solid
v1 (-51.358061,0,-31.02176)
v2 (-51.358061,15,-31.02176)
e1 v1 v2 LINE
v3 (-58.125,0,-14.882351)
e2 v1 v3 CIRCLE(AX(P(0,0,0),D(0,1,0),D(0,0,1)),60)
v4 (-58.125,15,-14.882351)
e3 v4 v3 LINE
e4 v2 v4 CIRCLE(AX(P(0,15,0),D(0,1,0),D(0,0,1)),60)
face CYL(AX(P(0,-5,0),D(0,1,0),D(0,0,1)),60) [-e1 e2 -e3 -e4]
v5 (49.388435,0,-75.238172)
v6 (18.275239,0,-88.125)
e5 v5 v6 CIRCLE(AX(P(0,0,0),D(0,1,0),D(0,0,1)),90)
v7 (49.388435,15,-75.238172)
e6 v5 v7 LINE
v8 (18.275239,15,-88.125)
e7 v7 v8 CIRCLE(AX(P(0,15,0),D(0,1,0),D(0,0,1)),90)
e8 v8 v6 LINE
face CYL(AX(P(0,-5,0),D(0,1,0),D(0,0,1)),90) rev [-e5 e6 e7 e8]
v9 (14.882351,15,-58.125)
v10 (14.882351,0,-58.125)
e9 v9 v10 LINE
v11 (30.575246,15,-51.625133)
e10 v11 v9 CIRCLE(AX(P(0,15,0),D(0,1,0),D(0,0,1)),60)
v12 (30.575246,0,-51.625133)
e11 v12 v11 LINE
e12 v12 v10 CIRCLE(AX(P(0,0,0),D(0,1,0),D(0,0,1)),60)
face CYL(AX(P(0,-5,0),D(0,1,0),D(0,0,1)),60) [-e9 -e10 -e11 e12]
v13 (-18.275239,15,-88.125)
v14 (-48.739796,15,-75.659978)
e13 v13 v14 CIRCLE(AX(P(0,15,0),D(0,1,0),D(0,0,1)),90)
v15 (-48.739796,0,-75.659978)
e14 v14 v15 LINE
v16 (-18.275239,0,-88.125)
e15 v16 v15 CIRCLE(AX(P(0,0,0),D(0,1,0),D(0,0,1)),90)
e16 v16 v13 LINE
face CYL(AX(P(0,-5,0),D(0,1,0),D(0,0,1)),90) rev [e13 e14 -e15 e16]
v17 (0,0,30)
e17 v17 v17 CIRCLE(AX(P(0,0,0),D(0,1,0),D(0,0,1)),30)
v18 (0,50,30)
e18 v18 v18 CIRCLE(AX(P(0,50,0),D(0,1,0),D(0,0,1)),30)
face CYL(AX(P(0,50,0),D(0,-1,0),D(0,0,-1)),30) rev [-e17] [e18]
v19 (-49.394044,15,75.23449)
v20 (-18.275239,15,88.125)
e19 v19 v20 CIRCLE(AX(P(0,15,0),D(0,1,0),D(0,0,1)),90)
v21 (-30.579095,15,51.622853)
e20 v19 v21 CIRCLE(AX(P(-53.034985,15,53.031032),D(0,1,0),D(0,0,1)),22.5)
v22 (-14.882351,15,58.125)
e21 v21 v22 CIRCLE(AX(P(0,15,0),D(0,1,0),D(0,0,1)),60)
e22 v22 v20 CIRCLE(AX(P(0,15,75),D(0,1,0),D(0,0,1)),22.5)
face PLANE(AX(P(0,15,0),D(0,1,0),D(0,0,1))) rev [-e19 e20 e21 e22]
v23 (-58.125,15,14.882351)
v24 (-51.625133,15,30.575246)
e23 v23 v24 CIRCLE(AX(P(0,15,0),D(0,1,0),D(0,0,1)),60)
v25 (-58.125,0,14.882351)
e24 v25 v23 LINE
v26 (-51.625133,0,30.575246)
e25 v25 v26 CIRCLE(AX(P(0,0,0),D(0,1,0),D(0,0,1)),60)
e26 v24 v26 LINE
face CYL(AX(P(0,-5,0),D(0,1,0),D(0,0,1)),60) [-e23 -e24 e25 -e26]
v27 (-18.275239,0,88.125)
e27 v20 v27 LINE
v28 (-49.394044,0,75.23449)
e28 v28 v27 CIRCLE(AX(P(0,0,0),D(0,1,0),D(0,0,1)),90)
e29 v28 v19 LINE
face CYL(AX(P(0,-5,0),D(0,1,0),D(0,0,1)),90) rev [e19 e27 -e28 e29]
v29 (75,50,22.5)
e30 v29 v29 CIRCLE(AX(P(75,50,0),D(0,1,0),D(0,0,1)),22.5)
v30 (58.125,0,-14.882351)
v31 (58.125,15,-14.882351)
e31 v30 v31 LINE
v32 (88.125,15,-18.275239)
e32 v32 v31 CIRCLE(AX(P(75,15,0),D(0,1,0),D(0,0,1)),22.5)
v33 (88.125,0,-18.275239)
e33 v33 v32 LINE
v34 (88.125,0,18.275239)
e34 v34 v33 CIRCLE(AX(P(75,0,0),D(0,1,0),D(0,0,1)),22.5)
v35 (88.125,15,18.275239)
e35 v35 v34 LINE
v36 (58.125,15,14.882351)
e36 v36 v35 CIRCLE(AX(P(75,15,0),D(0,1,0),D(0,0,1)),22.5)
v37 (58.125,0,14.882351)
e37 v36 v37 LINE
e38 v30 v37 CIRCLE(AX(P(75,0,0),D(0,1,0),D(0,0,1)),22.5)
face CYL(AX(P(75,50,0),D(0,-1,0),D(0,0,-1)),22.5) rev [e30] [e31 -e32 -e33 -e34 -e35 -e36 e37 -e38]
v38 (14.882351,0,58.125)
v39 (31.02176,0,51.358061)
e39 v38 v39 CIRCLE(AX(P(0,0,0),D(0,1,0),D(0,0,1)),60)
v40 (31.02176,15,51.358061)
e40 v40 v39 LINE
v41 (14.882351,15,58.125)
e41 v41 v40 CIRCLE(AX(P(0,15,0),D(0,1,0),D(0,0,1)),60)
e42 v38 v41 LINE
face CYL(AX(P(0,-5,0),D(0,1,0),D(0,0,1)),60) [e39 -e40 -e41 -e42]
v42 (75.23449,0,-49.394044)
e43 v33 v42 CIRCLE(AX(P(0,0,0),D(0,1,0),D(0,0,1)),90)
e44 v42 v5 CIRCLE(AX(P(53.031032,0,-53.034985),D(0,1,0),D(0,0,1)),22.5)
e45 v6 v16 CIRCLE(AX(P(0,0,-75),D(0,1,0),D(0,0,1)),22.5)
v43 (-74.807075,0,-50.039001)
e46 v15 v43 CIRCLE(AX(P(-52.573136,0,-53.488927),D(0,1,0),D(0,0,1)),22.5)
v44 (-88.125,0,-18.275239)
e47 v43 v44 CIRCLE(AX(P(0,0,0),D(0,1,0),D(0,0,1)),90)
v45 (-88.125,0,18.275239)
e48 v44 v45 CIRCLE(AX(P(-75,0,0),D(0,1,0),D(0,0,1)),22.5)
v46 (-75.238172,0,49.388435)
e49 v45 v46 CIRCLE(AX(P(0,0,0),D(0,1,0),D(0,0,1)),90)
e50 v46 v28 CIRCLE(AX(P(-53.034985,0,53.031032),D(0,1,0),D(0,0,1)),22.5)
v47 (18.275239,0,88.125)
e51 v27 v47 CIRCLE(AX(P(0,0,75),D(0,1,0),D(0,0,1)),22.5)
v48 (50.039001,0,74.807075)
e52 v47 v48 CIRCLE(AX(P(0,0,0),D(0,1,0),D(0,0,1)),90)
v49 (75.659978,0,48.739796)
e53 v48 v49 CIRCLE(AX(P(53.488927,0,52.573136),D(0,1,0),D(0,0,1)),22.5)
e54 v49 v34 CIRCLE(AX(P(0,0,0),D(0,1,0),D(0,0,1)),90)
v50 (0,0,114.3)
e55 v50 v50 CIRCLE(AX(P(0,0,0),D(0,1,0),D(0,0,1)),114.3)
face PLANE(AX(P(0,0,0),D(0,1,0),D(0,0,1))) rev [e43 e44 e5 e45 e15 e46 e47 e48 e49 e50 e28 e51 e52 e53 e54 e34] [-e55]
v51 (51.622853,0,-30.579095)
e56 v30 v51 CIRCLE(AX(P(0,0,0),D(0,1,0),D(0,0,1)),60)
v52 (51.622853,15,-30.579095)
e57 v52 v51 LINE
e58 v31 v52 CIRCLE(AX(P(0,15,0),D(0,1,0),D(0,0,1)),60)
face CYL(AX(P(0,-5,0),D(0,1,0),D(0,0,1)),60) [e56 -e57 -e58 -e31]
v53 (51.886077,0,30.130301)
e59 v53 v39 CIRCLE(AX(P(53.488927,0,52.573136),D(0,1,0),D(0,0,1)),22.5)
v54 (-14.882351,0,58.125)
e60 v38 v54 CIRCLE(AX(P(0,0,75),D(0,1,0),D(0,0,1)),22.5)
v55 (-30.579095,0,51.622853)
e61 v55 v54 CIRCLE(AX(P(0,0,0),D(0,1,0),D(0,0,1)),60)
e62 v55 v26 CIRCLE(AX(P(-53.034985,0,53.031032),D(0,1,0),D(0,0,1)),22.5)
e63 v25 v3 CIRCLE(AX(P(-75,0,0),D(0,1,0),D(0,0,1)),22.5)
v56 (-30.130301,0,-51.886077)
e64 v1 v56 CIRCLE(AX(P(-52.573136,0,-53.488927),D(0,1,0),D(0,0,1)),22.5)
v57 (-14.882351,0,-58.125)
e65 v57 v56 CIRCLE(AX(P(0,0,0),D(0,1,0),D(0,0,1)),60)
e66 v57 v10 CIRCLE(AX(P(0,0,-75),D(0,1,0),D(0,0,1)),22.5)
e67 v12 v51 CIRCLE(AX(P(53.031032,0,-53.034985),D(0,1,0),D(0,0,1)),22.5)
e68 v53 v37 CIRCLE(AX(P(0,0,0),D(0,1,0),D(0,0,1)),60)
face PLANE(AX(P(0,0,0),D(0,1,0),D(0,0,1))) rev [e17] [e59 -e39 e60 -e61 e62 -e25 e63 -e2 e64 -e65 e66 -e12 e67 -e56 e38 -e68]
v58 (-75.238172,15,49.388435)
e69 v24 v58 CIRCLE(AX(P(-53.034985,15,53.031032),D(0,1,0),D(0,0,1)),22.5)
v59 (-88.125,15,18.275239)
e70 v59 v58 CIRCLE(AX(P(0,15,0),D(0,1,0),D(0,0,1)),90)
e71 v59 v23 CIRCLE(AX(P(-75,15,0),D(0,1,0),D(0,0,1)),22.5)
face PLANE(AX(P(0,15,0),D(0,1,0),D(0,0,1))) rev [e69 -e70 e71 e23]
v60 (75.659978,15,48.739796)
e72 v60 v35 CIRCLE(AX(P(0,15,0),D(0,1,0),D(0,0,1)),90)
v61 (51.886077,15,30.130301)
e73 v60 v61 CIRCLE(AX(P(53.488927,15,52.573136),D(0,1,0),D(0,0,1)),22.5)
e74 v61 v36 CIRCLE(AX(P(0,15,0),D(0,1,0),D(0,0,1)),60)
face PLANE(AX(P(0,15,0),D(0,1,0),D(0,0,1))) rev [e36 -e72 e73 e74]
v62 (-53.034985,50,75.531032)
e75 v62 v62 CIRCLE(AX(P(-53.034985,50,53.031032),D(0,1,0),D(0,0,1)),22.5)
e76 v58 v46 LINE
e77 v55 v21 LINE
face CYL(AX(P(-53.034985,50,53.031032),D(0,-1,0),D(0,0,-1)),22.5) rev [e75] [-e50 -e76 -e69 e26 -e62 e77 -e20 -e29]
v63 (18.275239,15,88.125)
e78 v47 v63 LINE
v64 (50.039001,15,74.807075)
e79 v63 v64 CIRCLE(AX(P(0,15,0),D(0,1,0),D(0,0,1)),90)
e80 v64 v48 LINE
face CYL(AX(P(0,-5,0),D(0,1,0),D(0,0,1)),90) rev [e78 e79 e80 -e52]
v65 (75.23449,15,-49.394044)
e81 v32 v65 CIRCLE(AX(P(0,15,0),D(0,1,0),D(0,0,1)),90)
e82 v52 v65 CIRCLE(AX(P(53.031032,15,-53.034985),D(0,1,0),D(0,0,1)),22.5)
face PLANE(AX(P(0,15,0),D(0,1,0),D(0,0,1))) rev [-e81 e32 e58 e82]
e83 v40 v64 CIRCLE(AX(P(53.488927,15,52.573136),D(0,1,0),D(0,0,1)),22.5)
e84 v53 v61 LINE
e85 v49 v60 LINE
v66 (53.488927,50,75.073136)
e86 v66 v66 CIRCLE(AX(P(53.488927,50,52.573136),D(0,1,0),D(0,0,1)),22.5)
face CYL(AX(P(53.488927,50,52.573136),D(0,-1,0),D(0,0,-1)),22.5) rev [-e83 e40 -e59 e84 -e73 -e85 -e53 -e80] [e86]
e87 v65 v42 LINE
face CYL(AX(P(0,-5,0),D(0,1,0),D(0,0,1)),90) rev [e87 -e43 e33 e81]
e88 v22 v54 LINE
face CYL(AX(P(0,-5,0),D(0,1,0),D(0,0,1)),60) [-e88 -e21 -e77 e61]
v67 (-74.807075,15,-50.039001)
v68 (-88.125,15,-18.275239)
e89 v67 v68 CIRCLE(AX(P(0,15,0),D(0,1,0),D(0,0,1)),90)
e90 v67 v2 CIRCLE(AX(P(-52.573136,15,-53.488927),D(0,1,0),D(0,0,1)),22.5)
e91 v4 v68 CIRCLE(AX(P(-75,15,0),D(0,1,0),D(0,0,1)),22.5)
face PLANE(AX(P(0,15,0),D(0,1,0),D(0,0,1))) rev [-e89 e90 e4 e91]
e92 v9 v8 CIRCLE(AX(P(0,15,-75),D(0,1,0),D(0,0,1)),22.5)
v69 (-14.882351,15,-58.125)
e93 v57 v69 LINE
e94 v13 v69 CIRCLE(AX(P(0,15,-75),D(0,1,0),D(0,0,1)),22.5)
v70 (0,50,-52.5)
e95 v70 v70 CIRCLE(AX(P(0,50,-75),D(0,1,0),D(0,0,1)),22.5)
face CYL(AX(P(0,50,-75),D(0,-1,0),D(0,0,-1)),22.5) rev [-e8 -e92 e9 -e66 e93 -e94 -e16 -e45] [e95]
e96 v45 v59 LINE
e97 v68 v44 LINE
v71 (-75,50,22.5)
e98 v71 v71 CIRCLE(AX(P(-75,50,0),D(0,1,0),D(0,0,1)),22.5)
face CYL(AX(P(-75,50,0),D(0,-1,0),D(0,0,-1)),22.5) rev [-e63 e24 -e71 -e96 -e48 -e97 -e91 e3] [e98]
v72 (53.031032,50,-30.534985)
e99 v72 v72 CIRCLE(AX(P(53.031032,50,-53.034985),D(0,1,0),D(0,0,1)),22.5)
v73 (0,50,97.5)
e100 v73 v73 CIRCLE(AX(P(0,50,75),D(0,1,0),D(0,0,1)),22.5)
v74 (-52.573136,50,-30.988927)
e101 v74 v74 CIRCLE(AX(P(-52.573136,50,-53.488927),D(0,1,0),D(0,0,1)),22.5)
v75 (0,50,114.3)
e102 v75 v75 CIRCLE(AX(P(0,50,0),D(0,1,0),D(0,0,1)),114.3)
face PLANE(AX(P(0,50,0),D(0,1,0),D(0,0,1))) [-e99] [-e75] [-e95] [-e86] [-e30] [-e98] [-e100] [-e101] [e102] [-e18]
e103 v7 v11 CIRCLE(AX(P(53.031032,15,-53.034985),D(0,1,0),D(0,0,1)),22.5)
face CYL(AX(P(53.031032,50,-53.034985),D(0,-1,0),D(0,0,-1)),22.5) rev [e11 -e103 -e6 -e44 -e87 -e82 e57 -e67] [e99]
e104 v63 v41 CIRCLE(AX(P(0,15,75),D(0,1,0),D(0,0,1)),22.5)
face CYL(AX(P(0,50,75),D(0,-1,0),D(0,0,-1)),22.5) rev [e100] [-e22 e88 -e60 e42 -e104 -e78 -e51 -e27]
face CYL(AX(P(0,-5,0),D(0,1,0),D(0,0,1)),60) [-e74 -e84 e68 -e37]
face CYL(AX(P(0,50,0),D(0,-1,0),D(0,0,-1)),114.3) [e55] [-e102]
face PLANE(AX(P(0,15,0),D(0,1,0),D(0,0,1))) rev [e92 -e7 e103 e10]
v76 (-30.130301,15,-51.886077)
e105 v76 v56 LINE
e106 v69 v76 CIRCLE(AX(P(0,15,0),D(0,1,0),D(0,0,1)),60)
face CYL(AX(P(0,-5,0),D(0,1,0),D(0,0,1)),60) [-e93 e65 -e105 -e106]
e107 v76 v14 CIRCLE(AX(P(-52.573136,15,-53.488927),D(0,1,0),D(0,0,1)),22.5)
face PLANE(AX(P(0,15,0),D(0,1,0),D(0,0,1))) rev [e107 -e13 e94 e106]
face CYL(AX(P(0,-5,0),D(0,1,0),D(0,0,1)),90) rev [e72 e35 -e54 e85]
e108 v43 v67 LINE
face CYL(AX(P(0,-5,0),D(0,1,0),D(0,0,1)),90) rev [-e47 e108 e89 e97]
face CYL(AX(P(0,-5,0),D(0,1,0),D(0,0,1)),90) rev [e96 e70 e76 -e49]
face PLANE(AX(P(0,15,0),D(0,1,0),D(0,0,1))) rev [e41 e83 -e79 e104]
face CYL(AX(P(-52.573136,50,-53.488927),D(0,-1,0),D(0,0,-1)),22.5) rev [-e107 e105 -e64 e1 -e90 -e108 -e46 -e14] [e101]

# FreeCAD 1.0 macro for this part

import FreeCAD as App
import Part
import Sketcher
Q = App.Units.Quantity

doc = App.newDocument("Part")
body = doc.addObject("PartDesign::Body", "Body")

sketch1 = body.newObject("Sketcher::SketchObject", "Sketch")
sketch1.AttachmentSupport = (doc.getObject("XZ_Plane"), [""])
sketch1.MapMode = "FlatFace"
sketch1.addGeometry(Part.Circle(App.Vector(0, 0, 0), App.Vector(0, 0, 1), 114.3), False)
sketch1.addGeometry(Part.Circle(App.Vector(-52.573136, -53.488927, 0), App.Vector(0, 0, 1), 22.5), False)
sketch1.addGeometry(Part.Circle(App.Vector(0, -75, 0), App.Vector(0, 0, 1), 22.5), False)
sketch1.addGeometry(Part.Circle(App.Vector(-75, 0, 0), App.Vector(0, 0, 1), 22.5), False)
sketch1.addGeometry(Part.Circle(App.Vector(-53.034985, 53.031032, 0), App.Vector(0, 0, 1), 22.5), False)
sketch1.addGeometry(Part.Circle(App.Vector(53.031032, -53.034985, 0), App.Vector(0, 0, 1), 22.5), False)
sketch1.addGeometry(Part.Circle(App.Vector(75, 0, 0), App.Vector(0, 0, 1), 22.5), False)
sketch1.addGeometry(Part.Circle(App.Vector(0, 0, 0), App.Vector(0, 0, 1), 30), False)
sketch1.addGeometry(Part.Circle(App.Vector(0, 75, 0), App.Vector(0, 0, 1), 22.5), False)
sketch1.addGeometry(Part.Circle(App.Vector(53.488927, 52.573136, 0), App.Vector(0, 0, 1), 22.5), False)
sketch1.addConstraint(Sketcher.Constraint("Coincident", 0, 3, -1, 1))
sketch1.addConstraint(Sketcher.Constraint("Coincident", 7, 3, -1, 1))
sketch1.addConstraint(Sketcher.Constraint("Equal", 1, 2))
sketch1.addConstraint(Sketcher.Constraint("Equal", 2, 3))
sketch1.addConstraint(Sketcher.Constraint("Equal", 3, 4))
sketch1.addConstraint(Sketcher.Constraint("Equal", 4, 5))
sketch1.addConstraint(Sketcher.Constraint("Equal", 5, 6))
sketch1.addConstraint(Sketcher.Constraint("Equal", 6, 8))
sketch1.addConstraint(Sketcher.Constraint("Equal", 8, 9))
sketch1.addConstraint(Sketcher.Constraint("Symmetric", 3, 3, 6, 3, -1, 1))
sketch1.addConstraint(Sketcher.Constraint("Symmetric", 2, 3, 8, 3, -1, 1))
sketch1.addConstraint(Sketcher.Constraint("PointOnObject", 2, 3, -2))
sketch1.addConstraint(Sketcher.Constraint("PointOnObject", 3, 3, -1))
sketch1.addConstraint(Sketcher.Constraint("Diameter", 1, Q("45 mm")))
sketch1.addConstraint(Sketcher.Constraint("Diameter", 7, Q("60 mm")))
sketch1.addConstraint(Sketcher.Constraint("Diameter", 0, Q("228.6 mm")))
sketch1.addConstraint(Sketcher.Constraint("DistanceY", 2, 3, -1, 1, Q("75 mm")))
sketch1.addConstraint(Sketcher.Constraint("DistanceX", 3, 3, -1, 1, Q("75 mm")))
sketch1.addConstraint(Sketcher.Constraint("DistanceY", -1, 1, 4, 3, Q("53.031032 mm")))
sketch1.addConstraint(Sketcher.Constraint("DistanceX", -1, 1, 5, 3, Q("53.031032 mm")))
sketch1.addConstraint(Sketcher.Constraint("DistanceX", 4, 3, 1, 3, Q("0.461849 mm")))
sketch1.addConstraint(Sketcher.Constraint("DistanceY", 1, 3, 4, 3, Q("106.519959 mm")))
sketch1.addConstraint(Sketcher.Constraint("DistanceX", 1, 3, 5, 3, Q("105.604168 mm")))
sketch1.addConstraint(Sketcher.Constraint("DistanceY", 1, 3, 5, 3, Q("0.453942 mm")))
sketch1.addConstraint(Sketcher.Constraint("DistanceY", 5, 3, 9, 3, Q("105.608122 mm")))
sketch1.addConstraint(Sketcher.Constraint("DistanceX", -1, 1, 9, 3, Q("53.488927 mm")))
pad1 = body.newObject("PartDesign::Pad", "Pad")
pad1.Profile = sketch1
pad1.Length = 50
pad1.Reversed = True

sketch2 = body.newObject("Sketcher::SketchObject", "Sketch001")
sketch2.AttachmentSupport = (doc.getObject("XZ_Plane"), [""])
sketch2.MapMode = "FlatFace"
sketch2.AttachmentOffset = App.Placement(App.Vector(0, 0, -15), App.Rotation())
sketch2.addGeometry(Part.Circle(App.Vector(0, 0, 0), App.Vector(0, 0, 1), 90), False)
sketch2.addGeometry(Part.Circle(App.Vector(0, 0, 0), App.Vector(0, 0, 1), 60), False)
sketch2.addConstraint(Sketcher.Constraint("Coincident", 0, 3, -1, 1))
sketch2.addConstraint(Sketcher.Constraint("Coincident", 1, 3, -1, 1))
sketch2.addConstraint(Sketcher.Constraint("Diameter", 0, Q("180 mm")))
sketch2.addConstraint(Sketcher.Constraint("Diameter", 1, Q("120 mm")))
pocket1 = body.newObject("PartDesign::Pocket", "Pocket")
pocket1.Profile = sketch2
pocket1.Length = 20
pocket1.Reversed = True

doc.recompute()
